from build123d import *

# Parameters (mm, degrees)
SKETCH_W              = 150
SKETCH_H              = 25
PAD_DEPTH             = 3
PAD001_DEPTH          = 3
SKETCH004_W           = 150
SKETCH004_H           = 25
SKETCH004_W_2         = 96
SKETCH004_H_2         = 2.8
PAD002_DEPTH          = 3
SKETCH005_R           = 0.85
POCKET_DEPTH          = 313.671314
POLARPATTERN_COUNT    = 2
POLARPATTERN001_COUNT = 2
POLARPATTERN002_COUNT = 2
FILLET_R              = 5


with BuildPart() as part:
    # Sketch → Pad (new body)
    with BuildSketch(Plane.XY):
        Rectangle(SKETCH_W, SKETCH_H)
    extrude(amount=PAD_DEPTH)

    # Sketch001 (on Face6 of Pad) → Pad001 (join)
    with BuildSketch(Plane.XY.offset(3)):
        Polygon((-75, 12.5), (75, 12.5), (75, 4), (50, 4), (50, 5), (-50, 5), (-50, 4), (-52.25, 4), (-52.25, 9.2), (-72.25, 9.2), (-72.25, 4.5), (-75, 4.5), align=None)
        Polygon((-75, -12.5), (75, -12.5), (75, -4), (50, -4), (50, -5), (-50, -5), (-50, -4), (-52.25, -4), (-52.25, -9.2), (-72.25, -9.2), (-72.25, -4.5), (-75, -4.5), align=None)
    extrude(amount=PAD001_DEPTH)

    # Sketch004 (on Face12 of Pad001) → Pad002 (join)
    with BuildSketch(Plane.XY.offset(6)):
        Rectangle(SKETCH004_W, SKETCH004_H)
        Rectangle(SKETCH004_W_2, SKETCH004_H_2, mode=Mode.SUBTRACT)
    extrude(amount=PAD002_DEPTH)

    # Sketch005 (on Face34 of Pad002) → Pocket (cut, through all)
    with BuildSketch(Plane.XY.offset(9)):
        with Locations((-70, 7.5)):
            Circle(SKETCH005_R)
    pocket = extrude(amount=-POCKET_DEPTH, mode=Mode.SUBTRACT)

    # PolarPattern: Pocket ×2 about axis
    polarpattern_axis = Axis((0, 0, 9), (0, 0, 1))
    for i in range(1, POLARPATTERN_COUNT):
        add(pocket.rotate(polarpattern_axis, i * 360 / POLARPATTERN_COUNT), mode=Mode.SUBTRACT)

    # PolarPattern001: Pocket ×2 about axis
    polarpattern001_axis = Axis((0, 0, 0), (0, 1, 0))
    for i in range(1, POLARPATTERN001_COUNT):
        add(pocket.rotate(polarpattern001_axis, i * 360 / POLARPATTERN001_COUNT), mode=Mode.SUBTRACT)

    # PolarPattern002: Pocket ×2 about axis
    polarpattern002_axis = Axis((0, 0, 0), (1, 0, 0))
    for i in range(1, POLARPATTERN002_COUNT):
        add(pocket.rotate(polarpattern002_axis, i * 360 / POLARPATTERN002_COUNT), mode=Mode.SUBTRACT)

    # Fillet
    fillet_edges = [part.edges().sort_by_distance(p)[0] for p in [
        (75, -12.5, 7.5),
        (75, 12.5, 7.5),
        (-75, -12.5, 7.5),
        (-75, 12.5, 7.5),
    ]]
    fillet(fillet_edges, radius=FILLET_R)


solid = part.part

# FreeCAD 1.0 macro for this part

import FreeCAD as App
import Part
import Sketcher


def edges_at(feature, points):
    """Names of the edges that pass closest to the given points."""
    edges = feature.Shape.Edges
    near = lambda p: min(range(len(edges)), key=lambda i: edges[i].distToShape(Part.Vertex(*p))[0])
    return sorted({f"Edge{near(p) + 1}" for p in points})


def add_polygon(sketch, points):
    """Adds a closed chain of lines whose ends are joined by coincident constraints."""
    first, n = sketch.GeometryCount, len(points)
    for a, b in zip(points, points[1:] + points[:1]):
        sketch.addGeometry(Part.LineSegment(App.Vector(*a, 0), App.Vector(*b, 0)), False)
    for i in range(n):
        sketch.addConstraint(Sketcher.Constraint("Coincident", first + i, 2, first + (i + 1) % n, 1))

doc = App.newDocument("Part")
params = doc.addObject("Spreadsheet::Sheet", "Params")
for row, (alias, value) in enumerate([
    ("sketch1_width", "150 mm"),
    ("sketch1_height", "25 mm"),
    ("pad1_length", "3 mm"),
    ("sketch2_width", "150 mm"),
    ("sketch2_width2", "20 mm"),
    ("sketch2_width3", "100 mm"),
    ("sketch2_height", "8 mm"),
    ("sketch2_height2", "1 mm"),
    ("pad2_length", "3 mm"),
    ("sketch3_width", "150 mm"),
    ("sketch3_width2", "96 mm"),
    ("sketch3_height", "25 mm"),
    ("sketch3_height2", "2.8 mm"),
    ("pad3_length", "3 mm"),
    ("sketch4_diameter", "1.7 mm"),
    ("fillet_radius", "5 mm"),
], start=1):
    params.set(f"A{row}", alias)
    params.set(f"B{row}", "=" + value)
    params.setAlias(f"B{row}", alias)

body = doc.addObject("PartDesign::Body", "Body")

sketch1 = body.newObject("Sketcher::SketchObject", "Sketch")
sketch1.AttachmentSupport = (doc.getObject("XY_Plane"), [""])
sketch1.MapMode = "FlatFace"
add_polygon(sketch1, [(-75, 12), (-75, -12), (75, -12), (75, 12)])
sketch1.addConstraint([
    Sketcher.Constraint("Vertical", 0),
    Sketcher.Constraint("Horizontal", 1),
    Sketcher.Constraint("Vertical", 2),
    Sketcher.Constraint("Horizontal", 3),
    Sketcher.Constraint("Symmetric", 0, 2, 2, 2, -1, 1),
    Sketcher.Constraint("DistanceX", 1, 1, 1, 2, 150.0),
    Sketcher.Constraint("DistanceY", 0, 2, 0, 1, 25.0),
])
sketch1.setExpression("Constraints[9]", "Params.sketch1_width")
sketch1.setExpression("Constraints[10]", "Params.sketch1_height")
pad1 = body.newObject("PartDesign::Pad", "Pad")
pad1.Profile = sketch1
pad1.setExpression("Length", "Params.pad1_length")

sketch2 = body.newObject("Sketcher::SketchObject", "Sketch001")
sketch2.AttachmentSupport = (doc.getObject("XY_Plane"), [""])
sketch2.MapMode = "FlatFace"
sketch2.AttachmentOffset = App.Placement(App.Vector(0, 0, 3), App.Rotation())
add_polygon(sketch2, [(75, 12.5), (-75, 12.5), (-75, 4.5), (-72.2, 4.5), (-72.2, 9.2), (-52.2, 9.2), (-52.2, 4), (-50, 4), (-50, 5), (50, 5), (50, 4), (75, 4)])
add_polygon(sketch2, [(-75, -12.5), (75, -12.5), (75, -4), (50, -4), (50, -5), (-50, -5), (-50, -4), (-52.2, -4), (-52.2, -9.2), (-72.2, -9.2), (-72.2, -4.5), (-75, -4.5)])
sketch2.addConstraint([
    Sketcher.Constraint("Horizontal", 0),
    Sketcher.Constraint("Vertical", 1),
    Sketcher.Constraint("Horizontal", 2),
    Sketcher.Constraint("Vertical", 3),
    Sketcher.Constraint("Horizontal", 4),
    Sketcher.Constraint("Vertical", 5),
    Sketcher.Constraint("Horizontal", 6),
    Sketcher.Constraint("Vertical", 7),
    Sketcher.Constraint("Horizontal", 8),
    Sketcher.Constraint("Vertical", 9),
    Sketcher.Constraint("Horizontal", 10),
    Sketcher.Constraint("Vertical", 11),
    Sketcher.Constraint("Horizontal", 12),
    Sketcher.Constraint("Vertical", 13),
    Sketcher.Constraint("Horizontal", 14),
    Sketcher.Constraint("Vertical", 15),
    Sketcher.Constraint("Horizontal", 16),
    Sketcher.Constraint("Vertical", 17),
    Sketcher.Constraint("Horizontal", 18),
    Sketcher.Constraint("Vertical", 19),
    Sketcher.Constraint("Horizontal", 20),
    Sketcher.Constraint("Vertical", 21),
    Sketcher.Constraint("Horizontal", 22),
    Sketcher.Constraint("Vertical", 23),
    Sketcher.Constraint("Symmetric", 0, 2, 12, 2, -1, 1),
    Sketcher.Constraint("Symmetric", 6, 2, 14, 2, -1, 1),
    Sketcher.Constraint("Symmetric", 8, 2, 16, 2, -1, 1),
    Sketcher.Constraint("Symmetric", 6, 2, 9, 2, -2),
    Sketcher.Constraint("Symmetric", 5, 2, 18, 2, -1),
    Sketcher.Constraint("Symmetric", 3, 2, 20, 2, -1),
    Sketcher.Constraint("Symmetric", 1, 2, 22, 2, -1),
    Sketcher.Constraint("Vertical", 11, 2, 12, 2),
    Sketcher.Constraint("DistanceX", 0, 2, 0, 1, 150.0),
    Sketcher.Constraint("DistanceX", 4, 1, 4, 2, 20.0),
    Sketcher.Constraint("DistanceX", 8, 1, 8, 2, 100.0),
    Sketcher.Constraint("DistanceY", 1, 2, 1, 1, 8.0),
    Sketcher.Constraint("DistanceY", 7, 1, 7, 2, 1.0),
    Sketcher.Constraint("DistanceY", 3, 1, 3, 2, 4.7),
    Sketcher.Constraint("DistanceY", 5, 2, 5, 1, 5.2),
    Sketcher.Constraint("DistanceY", -1, 1, 5, 2, 4.0),
    Sketcher.Constraint("DistanceX", 2, 1, 2, 2, 2.75),
])
sketch2.setExpression("Constraints[56]", "Params.sketch2_width")
sketch2.setExpression("Constraints[57]", "Params.sketch2_width2")
sketch2.setExpression("Constraints[58]", "Params.sketch2_width3")
sketch2.setExpression("Constraints[59]", "Params.sketch2_height")
sketch2.setExpression("Constraints[60]", "Params.sketch2_height2")
pad2 = body.newObject("PartDesign::Pad", "Pad001")
pad2.Profile = sketch2
pad2.setExpression("Length", "Params.pad2_length")

sketch3 = body.newObject("Sketcher::SketchObject", "Sketch002")
sketch3.AttachmentSupport = (doc.getObject("XY_Plane"), [""])
sketch3.MapMode = "FlatFace"
sketch3.AttachmentOffset = App.Placement(App.Vector(0, 0, 6), App.Rotation())
add_polygon(sketch3, [(-75, 12.5), (-75, -12.5), (75, -12.5), (75, 12.5)])
add_polygon(sketch3, [(48, -1.4), (-48, -1.4), (-48, 1.4), (48, 1.4)])
sketch3.addConstraint([
    Sketcher.Constraint("Vertical", 0),
    Sketcher.Constraint("Horizontal", 1),
    Sketcher.Constraint("Vertical", 2),
    Sketcher.Constraint("Horizontal", 3),
    Sketcher.Constraint("Horizontal", 4),
    Sketcher.Constraint("Vertical", 5),
    Sketcher.Constraint("Horizontal", 6),
    Sketcher.Constraint("Vertical", 7),
    Sketcher.Constraint("Symmetric", 0, 2, 2, 2, -1, 1),
    Sketcher.Constraint("Symmetric", 4, 2, 6, 2, -1, 1),
    Sketcher.Constraint("DistanceX", 1, 1, 1, 2, 150.0),
    Sketcher.Constraint("DistanceX", 4, 2, 4, 1, 96.0),
    Sketcher.Constraint("DistanceY", 0, 2, 0, 1, 25.0),
    Sketcher.Constraint("DistanceY", 5, 1, 5, 2, 2.8),
])
sketch3.setExpression("Constraints[18]", "Params.sketch3_width")
sketch3.setExpression("Constraints[19]", "Params.sketch3_width2")
sketch3.setExpression("Constraints[20]", "Params.sketch3_height")
sketch3.setExpression("Constraints[21]", "Params.sketch3_height2")
pad3 = body.newObject("PartDesign::Pad", "Pad002")
pad3.Profile = sketch3
pad3.setExpression("Length", "Params.pad3_length")

sketch4 = body.newObject("Sketcher::SketchObject", "Sketch003")
sketch4.AttachmentSupport = (doc.getObject("XY_Plane"), [""])
sketch4.MapMode = "FlatFace"
sketch4.AttachmentOffset = App.Placement(App.Vector(0, 0, 9), App.Rotation())
sketch4.addGeometry(Part.Circle(App.Vector(-70, 7.5, 0), App.Vector(0, 0, 1), 0.8), False)
sketch4.addConstraint([
    Sketcher.Constraint("Diameter", 0, 1.7),
    Sketcher.Constraint("DistanceX", 0, 3, -1, 1, 70.0),
    Sketcher.Constraint("DistanceY", -1, 1, 0, 3, 7.5),
])
sketch4.setExpression("Constraints[0]", "Params.sketch4_diameter")
pocket1 = body.newObject("PartDesign::Pocket", "Pocket")
pocket1.Profile = sketch4
pocket1.Type = "ThroughAll"
doc.recompute()

polarpattern = body.newObject("PartDesign::PolarPattern", "PolarPattern")
polarpattern.Originals = [pocket1]
polarpattern.Axis = (doc.getObject("Z_Axis"), [""])
polarpattern.Angle = 360
polarpattern.Occurrences = 2
body.Tip = polarpattern
doc.recompute()

polarpattern2 = body.newObject("PartDesign::PolarPattern", "PolarPattern001")
polarpattern2.Originals = [pocket1]
polarpattern2.Axis = (doc.getObject("Y_Axis"), [""])
polarpattern2.Angle = 360
polarpattern2.Occurrences = 2
body.Tip = polarpattern2
doc.recompute()

polarpattern3 = body.newObject("PartDesign::PolarPattern", "PolarPattern002")
polarpattern3.Originals = [pocket1]
polarpattern3.Axis = (doc.getObject("X_Axis"), [""])
polarpattern3.Angle = 360
polarpattern3.Occurrences = 2
body.Tip = polarpattern3
doc.recompute()

fillet = body.newObject("PartDesign::Fillet", "Fillet")
fillet.Base = (polarpattern3, edges_at(polarpattern3, [
    (75, -12.5, 4.5),
    (75, 12.5, 4.5),
    (-75, -12.5, 4.5),
    (-75, 12.5, 4.5),
]))
fillet.setExpression("Radius", "Params.fillet_radius")

doc.recompute()
